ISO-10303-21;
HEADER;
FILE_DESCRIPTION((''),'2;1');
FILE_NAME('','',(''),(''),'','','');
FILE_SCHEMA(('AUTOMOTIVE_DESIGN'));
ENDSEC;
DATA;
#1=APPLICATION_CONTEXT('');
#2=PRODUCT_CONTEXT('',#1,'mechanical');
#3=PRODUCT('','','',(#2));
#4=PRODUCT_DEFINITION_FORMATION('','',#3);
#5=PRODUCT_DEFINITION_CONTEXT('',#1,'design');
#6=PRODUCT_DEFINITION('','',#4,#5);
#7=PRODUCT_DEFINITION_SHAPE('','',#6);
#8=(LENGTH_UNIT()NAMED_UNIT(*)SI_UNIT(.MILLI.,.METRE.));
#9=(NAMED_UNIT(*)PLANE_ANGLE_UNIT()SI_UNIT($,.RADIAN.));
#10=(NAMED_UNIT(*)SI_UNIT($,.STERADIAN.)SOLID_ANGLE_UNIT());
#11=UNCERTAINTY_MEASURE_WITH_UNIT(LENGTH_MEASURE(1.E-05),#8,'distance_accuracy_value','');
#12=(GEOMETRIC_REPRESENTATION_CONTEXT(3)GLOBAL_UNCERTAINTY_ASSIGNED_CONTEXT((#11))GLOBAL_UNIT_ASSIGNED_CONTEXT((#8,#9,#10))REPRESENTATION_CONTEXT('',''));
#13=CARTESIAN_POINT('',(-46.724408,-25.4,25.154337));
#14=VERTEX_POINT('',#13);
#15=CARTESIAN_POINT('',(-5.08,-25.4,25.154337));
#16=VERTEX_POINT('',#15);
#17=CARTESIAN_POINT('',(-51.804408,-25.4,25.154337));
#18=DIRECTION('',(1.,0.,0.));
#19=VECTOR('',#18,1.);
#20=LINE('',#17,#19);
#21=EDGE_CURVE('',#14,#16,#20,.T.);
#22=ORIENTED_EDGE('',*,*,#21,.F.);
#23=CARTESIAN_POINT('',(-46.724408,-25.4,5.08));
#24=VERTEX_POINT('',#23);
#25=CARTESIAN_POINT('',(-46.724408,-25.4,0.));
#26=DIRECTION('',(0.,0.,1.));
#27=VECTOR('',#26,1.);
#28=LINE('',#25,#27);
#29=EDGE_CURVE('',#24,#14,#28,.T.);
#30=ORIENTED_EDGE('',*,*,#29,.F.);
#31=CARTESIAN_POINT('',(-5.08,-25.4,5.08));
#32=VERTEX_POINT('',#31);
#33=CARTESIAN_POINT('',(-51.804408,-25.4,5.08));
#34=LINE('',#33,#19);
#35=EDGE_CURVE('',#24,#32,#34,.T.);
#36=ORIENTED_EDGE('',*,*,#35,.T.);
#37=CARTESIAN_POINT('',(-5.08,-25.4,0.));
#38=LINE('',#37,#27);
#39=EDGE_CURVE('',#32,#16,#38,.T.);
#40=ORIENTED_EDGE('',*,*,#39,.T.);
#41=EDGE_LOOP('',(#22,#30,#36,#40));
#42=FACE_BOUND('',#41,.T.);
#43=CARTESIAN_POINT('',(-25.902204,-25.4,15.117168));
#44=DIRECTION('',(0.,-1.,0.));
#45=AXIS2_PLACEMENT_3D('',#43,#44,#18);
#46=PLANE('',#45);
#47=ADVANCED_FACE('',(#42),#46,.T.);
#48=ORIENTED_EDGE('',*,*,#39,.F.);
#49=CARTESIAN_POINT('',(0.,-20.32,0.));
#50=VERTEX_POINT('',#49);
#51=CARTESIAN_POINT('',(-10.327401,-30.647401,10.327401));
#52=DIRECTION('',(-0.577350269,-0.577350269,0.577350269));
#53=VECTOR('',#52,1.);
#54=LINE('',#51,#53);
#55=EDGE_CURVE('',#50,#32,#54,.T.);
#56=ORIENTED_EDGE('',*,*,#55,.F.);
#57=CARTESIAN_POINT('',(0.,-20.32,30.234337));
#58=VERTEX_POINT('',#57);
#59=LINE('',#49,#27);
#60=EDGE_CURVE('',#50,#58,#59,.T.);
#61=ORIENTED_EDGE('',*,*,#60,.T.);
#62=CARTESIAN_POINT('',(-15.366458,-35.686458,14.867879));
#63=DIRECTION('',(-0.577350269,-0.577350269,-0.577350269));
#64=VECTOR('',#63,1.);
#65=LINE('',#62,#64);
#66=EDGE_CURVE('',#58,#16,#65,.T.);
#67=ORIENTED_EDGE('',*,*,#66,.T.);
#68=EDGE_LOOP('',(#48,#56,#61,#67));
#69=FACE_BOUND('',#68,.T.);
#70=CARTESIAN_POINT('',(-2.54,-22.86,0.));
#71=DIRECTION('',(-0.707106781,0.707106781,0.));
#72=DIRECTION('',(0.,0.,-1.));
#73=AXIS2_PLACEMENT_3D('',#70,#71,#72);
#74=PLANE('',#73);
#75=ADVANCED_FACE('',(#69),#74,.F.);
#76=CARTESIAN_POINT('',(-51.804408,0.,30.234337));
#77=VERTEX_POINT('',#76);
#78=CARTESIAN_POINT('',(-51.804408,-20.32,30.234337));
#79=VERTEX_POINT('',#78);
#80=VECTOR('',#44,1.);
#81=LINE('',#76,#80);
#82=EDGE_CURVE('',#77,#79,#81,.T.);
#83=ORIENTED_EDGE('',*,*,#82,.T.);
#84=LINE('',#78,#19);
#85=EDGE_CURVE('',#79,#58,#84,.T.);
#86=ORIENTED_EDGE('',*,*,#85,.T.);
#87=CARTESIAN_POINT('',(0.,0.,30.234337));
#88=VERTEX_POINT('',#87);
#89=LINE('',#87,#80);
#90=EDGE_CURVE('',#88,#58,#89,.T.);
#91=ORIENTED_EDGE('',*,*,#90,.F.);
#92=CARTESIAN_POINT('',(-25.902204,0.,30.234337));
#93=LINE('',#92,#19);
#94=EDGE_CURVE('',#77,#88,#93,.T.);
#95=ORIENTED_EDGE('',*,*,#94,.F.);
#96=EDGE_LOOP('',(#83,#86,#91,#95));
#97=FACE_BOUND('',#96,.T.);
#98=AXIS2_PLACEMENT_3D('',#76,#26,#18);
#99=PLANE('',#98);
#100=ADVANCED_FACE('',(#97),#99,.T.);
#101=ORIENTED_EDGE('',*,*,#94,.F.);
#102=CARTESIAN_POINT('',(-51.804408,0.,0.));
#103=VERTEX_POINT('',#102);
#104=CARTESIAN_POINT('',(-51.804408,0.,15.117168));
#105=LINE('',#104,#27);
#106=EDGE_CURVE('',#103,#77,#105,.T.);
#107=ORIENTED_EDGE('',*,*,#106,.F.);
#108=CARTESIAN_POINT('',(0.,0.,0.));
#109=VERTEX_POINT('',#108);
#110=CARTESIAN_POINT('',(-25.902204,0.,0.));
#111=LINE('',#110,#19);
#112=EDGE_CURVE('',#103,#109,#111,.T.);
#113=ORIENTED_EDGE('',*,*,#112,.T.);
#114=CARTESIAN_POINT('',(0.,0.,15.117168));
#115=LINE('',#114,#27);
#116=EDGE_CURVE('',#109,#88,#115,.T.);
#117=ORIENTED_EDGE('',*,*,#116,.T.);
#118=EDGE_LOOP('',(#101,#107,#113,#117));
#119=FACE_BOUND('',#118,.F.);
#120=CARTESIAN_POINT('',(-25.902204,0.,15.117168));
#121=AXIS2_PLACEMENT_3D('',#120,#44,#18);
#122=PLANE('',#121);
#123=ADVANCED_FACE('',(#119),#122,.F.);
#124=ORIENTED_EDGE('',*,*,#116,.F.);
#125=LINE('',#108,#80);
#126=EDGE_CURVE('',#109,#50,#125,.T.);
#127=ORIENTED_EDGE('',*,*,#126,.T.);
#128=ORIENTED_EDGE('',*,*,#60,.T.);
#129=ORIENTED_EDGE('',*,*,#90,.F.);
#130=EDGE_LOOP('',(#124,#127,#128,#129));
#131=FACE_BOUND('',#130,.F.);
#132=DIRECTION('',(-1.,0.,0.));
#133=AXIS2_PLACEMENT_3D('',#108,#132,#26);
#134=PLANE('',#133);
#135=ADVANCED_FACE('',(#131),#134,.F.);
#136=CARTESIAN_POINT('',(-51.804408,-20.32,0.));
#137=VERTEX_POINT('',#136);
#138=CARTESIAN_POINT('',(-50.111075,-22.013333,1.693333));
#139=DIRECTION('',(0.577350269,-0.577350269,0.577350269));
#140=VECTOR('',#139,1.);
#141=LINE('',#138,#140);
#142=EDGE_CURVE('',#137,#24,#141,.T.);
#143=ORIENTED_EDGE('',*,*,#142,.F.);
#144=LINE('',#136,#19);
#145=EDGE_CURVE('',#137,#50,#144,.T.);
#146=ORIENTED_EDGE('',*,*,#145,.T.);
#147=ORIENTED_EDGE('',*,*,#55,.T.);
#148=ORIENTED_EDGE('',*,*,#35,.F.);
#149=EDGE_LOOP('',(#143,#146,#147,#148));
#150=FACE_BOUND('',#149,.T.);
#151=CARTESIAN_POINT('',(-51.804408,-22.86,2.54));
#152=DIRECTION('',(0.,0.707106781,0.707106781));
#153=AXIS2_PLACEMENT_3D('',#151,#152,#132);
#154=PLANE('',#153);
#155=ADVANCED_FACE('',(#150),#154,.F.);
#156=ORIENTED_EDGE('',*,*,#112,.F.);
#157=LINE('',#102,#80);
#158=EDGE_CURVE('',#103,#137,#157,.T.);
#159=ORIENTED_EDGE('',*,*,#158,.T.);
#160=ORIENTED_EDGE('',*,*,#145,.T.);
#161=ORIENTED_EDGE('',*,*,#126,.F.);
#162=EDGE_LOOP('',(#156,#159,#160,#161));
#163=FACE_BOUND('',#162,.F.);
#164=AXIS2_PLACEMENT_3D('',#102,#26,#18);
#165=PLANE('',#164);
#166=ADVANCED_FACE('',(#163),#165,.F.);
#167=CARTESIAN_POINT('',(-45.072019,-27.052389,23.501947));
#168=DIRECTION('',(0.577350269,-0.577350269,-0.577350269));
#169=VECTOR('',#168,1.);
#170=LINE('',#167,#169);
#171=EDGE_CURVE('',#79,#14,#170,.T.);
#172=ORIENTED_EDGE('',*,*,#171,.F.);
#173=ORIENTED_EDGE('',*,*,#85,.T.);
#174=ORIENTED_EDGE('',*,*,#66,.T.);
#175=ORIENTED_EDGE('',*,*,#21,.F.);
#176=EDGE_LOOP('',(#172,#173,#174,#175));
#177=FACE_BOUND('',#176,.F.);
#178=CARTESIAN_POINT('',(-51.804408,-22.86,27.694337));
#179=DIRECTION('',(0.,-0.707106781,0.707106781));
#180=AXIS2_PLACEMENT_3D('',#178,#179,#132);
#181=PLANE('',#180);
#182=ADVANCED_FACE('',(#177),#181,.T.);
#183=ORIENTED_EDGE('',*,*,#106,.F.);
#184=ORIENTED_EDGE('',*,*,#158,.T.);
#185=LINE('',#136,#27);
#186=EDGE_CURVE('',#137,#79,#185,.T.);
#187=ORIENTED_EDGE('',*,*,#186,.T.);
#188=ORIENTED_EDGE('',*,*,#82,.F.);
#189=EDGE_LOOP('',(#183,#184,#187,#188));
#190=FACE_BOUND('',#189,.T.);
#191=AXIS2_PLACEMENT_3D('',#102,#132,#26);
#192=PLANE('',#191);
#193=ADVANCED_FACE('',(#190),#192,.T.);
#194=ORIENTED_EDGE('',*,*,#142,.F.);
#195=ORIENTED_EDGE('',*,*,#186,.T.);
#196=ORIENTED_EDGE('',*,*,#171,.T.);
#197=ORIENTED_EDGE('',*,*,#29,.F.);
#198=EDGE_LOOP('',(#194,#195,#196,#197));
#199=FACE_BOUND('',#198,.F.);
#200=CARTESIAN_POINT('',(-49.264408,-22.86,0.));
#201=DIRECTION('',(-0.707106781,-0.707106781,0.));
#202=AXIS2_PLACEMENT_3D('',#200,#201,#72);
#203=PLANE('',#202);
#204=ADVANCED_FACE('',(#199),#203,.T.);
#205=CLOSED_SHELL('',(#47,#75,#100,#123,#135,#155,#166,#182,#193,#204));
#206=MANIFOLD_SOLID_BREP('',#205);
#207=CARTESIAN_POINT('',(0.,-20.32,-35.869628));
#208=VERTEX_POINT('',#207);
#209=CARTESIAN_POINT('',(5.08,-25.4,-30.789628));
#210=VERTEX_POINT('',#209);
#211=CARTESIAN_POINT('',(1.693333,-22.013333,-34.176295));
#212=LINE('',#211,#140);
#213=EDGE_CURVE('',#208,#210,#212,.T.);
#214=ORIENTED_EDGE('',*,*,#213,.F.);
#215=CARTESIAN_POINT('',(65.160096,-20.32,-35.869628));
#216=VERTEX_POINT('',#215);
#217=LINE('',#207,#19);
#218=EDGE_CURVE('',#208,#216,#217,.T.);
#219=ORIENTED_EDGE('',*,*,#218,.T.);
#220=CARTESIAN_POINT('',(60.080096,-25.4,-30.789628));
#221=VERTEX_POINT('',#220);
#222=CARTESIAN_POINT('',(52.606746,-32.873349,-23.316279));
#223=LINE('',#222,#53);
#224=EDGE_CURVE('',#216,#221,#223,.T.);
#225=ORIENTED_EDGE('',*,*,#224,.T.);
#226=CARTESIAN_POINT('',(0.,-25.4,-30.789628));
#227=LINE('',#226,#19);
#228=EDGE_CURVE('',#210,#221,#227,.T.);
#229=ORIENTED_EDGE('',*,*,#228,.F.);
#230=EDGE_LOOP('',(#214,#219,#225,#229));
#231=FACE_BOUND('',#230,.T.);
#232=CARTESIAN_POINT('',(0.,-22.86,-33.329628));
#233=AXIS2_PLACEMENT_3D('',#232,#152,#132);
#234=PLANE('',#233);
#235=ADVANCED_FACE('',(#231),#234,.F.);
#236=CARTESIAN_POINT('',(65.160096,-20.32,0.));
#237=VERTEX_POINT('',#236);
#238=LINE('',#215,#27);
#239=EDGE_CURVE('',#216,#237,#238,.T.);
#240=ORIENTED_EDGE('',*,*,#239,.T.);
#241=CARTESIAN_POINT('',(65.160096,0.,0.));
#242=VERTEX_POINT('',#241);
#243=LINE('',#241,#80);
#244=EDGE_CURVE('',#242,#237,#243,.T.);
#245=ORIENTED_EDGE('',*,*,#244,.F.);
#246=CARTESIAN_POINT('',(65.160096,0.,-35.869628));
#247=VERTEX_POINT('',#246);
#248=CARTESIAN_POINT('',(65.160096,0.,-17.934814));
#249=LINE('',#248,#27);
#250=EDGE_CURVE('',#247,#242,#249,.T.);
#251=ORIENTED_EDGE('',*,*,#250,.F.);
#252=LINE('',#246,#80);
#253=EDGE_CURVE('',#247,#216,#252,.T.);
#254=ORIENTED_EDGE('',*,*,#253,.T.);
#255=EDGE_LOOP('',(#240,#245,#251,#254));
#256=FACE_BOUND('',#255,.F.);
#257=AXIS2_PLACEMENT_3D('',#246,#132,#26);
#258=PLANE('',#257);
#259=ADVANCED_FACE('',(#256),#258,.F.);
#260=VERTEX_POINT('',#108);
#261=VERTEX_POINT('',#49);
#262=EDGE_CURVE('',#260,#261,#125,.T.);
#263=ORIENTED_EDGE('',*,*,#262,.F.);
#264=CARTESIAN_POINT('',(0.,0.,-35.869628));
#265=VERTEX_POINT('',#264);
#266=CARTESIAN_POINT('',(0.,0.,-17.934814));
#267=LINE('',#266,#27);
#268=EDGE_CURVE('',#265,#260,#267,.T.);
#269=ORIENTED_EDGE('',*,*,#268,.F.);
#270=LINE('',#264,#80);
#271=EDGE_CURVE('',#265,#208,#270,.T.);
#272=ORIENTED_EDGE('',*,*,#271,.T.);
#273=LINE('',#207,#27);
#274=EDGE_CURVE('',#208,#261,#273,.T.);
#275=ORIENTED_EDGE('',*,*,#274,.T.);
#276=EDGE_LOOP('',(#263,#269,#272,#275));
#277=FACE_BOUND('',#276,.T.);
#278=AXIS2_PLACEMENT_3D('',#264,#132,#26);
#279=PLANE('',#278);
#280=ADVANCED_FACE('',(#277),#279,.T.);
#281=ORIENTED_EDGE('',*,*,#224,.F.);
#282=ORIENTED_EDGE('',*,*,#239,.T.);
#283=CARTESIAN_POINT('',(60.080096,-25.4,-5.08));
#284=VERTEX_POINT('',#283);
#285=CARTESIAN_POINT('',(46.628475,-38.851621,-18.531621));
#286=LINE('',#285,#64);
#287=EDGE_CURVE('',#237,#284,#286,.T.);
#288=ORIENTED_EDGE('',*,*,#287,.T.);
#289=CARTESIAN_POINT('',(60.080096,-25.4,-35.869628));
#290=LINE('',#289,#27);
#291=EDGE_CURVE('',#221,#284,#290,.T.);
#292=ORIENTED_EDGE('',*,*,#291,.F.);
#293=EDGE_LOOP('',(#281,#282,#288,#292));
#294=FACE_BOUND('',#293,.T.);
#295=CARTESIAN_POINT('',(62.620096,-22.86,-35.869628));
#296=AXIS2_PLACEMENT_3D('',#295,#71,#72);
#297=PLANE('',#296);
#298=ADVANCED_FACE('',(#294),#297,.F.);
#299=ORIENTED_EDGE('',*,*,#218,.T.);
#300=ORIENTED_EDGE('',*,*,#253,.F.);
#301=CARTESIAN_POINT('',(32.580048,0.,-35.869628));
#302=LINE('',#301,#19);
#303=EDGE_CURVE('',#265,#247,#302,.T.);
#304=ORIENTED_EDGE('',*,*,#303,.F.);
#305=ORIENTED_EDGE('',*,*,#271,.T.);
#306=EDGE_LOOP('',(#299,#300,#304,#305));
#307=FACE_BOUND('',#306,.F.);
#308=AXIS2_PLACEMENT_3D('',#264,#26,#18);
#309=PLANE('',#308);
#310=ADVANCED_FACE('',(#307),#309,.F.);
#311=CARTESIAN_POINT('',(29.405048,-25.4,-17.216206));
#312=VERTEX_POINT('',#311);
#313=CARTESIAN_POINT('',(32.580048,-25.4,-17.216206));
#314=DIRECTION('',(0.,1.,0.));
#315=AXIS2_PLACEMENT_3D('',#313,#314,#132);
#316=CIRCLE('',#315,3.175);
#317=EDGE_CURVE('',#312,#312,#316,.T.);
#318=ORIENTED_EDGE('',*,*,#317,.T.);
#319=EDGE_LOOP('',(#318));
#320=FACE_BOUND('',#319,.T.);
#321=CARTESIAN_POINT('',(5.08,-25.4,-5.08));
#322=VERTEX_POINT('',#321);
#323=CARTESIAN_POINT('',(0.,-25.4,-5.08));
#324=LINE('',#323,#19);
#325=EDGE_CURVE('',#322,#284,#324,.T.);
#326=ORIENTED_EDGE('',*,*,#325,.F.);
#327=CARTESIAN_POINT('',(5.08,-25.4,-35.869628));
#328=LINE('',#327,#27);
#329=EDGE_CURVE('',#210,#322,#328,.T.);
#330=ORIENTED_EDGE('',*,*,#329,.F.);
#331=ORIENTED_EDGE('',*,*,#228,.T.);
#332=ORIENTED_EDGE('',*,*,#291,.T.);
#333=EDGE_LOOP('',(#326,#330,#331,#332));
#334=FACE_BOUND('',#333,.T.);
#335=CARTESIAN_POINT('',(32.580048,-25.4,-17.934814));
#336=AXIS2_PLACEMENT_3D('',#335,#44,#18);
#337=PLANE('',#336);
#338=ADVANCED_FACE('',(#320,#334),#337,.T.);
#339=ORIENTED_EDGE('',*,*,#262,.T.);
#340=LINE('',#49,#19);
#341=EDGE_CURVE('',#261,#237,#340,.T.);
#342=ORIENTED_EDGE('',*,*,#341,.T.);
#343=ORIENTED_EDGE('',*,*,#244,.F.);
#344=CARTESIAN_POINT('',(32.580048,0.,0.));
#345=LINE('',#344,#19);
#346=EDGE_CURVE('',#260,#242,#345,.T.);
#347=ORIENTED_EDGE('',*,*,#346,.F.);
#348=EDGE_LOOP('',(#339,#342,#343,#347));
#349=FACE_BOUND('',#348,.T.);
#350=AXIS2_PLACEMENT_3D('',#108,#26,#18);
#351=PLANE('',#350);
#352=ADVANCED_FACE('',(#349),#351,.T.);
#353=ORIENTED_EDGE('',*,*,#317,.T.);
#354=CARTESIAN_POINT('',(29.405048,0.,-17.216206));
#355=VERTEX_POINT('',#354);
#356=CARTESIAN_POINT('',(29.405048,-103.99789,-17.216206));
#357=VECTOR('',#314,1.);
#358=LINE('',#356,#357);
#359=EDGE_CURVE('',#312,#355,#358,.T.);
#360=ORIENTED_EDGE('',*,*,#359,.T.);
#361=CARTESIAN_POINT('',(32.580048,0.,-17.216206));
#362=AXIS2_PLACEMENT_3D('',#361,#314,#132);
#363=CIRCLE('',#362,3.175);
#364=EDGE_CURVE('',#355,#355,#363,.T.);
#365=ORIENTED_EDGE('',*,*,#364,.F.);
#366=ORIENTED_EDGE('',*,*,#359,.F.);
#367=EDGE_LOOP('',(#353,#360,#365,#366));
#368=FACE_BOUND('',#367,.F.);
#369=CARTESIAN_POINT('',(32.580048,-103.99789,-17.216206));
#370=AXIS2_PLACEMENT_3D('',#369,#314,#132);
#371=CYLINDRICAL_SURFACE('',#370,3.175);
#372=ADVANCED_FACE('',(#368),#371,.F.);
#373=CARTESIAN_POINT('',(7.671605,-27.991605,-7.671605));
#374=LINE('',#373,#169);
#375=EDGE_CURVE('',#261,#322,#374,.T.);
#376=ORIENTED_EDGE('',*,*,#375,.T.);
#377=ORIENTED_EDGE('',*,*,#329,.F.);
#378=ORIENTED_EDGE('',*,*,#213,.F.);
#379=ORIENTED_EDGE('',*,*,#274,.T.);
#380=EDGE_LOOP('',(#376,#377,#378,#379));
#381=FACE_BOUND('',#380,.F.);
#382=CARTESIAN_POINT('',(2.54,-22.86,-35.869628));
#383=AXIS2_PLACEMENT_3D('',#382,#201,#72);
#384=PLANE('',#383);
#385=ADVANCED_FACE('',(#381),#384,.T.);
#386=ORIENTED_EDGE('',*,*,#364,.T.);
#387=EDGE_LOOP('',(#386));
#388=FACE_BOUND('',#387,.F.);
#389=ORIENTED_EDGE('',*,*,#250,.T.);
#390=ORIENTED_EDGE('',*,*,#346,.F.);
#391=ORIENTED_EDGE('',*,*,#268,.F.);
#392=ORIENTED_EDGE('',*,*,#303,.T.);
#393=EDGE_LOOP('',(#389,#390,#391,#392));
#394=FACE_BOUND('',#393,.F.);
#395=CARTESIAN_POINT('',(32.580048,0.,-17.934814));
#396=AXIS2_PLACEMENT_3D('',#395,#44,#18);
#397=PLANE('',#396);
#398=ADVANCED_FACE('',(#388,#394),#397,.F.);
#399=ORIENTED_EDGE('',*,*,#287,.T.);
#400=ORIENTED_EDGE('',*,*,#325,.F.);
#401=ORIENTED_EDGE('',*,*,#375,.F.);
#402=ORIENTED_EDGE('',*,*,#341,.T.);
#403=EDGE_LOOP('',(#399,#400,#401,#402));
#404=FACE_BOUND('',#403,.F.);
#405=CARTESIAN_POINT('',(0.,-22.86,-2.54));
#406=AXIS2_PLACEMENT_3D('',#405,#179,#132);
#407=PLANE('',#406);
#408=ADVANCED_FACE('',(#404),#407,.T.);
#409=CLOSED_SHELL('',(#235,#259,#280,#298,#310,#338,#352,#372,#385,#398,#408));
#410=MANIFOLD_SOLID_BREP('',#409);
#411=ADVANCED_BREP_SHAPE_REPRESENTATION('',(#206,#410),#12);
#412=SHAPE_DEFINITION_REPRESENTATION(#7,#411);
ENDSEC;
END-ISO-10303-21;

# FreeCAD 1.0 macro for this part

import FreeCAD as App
import Part
import Sketcher
Q = App.Units.Quantity


def edges_at(feature, points):
    """Names of the edges that pass closest to the given points."""
    edges = feature.Shape.Edges
    near = lambda p: min(range(len(edges)), key=lambda i: edges[i].distToShape(Part.Vertex(*p))[0])
    return sorted({f"Edge{near(p) + 1}" for p in points})


def add_polygon(sketch, points):
    """Adds a closed chain of lines whose ends are joined by coincident constraints."""
    first, n = sketch.GeometryCount, len(points)
    for a, b in zip(points, points[1:] + points[:1]):
        sketch.addGeometry(Part.LineSegment(App.Vector(*a, 0), App.Vector(*b, 0)), False)
    for i in range(n):
        sketch.addConstraint(Sketcher.Constraint("Coincident", first + i, 2, first + (i + 1) % n, 1))

doc = App.newDocument("Part")
body = doc.addObject("PartDesign::Body", "Body")

# Sketch on XZ plane
sketch1 = doc.addObject("Sketcher::SketchObject", "Sketch")
body.addObject(sketch1)
sketch1.AttachmentSupport = (doc.XZ_Plane, [""])
sketch1.MapMode = "FlatFace"
add_polygon(sketch1, [(0, 0), (0, -35.869628), (65.160096, -35.869628), (65.160096, 0)])  # lines 0-3
sketch1.addConstraint(Sketcher.Constraint("Vertical", 0))
sketch1.addConstraint(Sketcher.Constraint("Horizontal", 1))
sketch1.addConstraint(Sketcher.Constraint("Vertical", 2))
sketch1.addConstraint(Sketcher.Constraint("Horizontal", 3))
sketch1.addConstraint(Sketcher.Constraint("Coincident", 3, 2, -1, 1))
sketch1.addConstraint(Sketcher.Constraint("DistanceY", 0, 2, 0, 1, Q("35.869628 mm")))
sketch1.addConstraint(Sketcher.Constraint("DistanceX", 1, 1, 1, 2, Q("65.160096 mm")))
pad1 = doc.addObject("PartDesign::Pad", "Pad")
body.addObject(pad1)
pad1.Profile = sketch1
pad1.Length = Q("1 in")
doc.recompute()

chamfer = doc.addObject("PartDesign::Chamfer", "Chamfer")
body.addObject(chamfer)
chamfer.Base = (pad1, edges_at(pad1, [
    (32.58, -25.4, 0),
    (0, -25.4, -17.935),
    (32.58, -25.4, -35.87),
    (65.16, -25.4, -17.935),
]))
chamfer.Size = Q("0.2 in")

# Sketch on XZ plane
sketch2 = doc.addObject("Sketcher::SketchObject", "Sketch001")
body.addObject(sketch2)
sketch2.AttachmentSupport = (doc.XZ_Plane, [""])
sketch2.MapMode = "FlatFace"
sketch2.AttachmentOffset = App.Placement(App.Vector(0, 0, 1 * 25.4), App.Rotation())
sketch2.addGeometry(Part.Circle(App.Vector(32.580048, -17.216206, 0), App.Vector(0, 0, 1), 3.175), False)
sketch2.addConstraint(Sketcher.Constraint("Diameter", 0, Q("0.25 in")))
sketch2.addConstraint(Sketcher.Constraint("DistanceX", -1, 1, 0, 3, Q("32.580048 mm")))
sketch2.addConstraint(Sketcher.Constraint("DistanceY", 0, 3, -1, 1, Q("17.216206 mm")))
doc.recompute()
hole = doc.addObject("PartDesign::Hole", "Hole")
body.addObject(hole)
hole.Profile = sketch2
hole.ThreadType = "None"
hole.Diameter = Q("0.25 in")
hole.DepthType = "ThroughAll"
body2 = doc.addObject("PartDesign::Body", "Body001")

# Sketch on XZ plane
sketch3 = doc.addObject("Sketcher::SketchObject", "Sketch002")
body2.addObject(sketch3)
sketch3.AttachmentSupport = (doc.getObject("XZ_Plane001"), [""])
sketch3.MapMode = "FlatFace"
add_polygon(sketch3, [(-51.804408, 30.234337), (-51.804408, 0), (0, 0), (0, 30.234337)])  # lines 0-3
sketch3.addConstraint(Sketcher.Constraint("Vertical", 0))
sketch3.addConstraint(Sketcher.Constraint("Horizontal", 1))
sketch3.addConstraint(Sketcher.Constraint("Vertical", 2))
sketch3.addConstraint(Sketcher.Constraint("Horizontal", 3))
sketch3.addConstraint(Sketcher.Constraint("Coincident", 1, 2, -1, 1))
sketch3.addConstraint(Sketcher.Constraint("DistanceX", 1, 1, 1, 2, Q("51.804408 mm")))
sketch3.addConstraint(Sketcher.Constraint("DistanceY", 0, 2, 0, 1, Q("30.234337 mm")))
pad2 = doc.addObject("PartDesign::Pad", "Pad001")
body2.addObject(pad2)
pad2.Profile = sketch3
pad2.Length = Q("1 in")
doc.recompute()

chamfer2 = doc.addObject("PartDesign::Chamfer", "Chamfer001")
body2.addObject(chamfer2)
chamfer2.Base = (pad2, edges_at(pad2, [
    (-25.902, -25.4, 30.234),
    (-25.902, -25.4, 0),
    (0, -25.4, 15.117),
    (-51.804, -25.4, 15.117),
]))
chamfer2.Size = Q("0.2 in")

doc.recompute()
